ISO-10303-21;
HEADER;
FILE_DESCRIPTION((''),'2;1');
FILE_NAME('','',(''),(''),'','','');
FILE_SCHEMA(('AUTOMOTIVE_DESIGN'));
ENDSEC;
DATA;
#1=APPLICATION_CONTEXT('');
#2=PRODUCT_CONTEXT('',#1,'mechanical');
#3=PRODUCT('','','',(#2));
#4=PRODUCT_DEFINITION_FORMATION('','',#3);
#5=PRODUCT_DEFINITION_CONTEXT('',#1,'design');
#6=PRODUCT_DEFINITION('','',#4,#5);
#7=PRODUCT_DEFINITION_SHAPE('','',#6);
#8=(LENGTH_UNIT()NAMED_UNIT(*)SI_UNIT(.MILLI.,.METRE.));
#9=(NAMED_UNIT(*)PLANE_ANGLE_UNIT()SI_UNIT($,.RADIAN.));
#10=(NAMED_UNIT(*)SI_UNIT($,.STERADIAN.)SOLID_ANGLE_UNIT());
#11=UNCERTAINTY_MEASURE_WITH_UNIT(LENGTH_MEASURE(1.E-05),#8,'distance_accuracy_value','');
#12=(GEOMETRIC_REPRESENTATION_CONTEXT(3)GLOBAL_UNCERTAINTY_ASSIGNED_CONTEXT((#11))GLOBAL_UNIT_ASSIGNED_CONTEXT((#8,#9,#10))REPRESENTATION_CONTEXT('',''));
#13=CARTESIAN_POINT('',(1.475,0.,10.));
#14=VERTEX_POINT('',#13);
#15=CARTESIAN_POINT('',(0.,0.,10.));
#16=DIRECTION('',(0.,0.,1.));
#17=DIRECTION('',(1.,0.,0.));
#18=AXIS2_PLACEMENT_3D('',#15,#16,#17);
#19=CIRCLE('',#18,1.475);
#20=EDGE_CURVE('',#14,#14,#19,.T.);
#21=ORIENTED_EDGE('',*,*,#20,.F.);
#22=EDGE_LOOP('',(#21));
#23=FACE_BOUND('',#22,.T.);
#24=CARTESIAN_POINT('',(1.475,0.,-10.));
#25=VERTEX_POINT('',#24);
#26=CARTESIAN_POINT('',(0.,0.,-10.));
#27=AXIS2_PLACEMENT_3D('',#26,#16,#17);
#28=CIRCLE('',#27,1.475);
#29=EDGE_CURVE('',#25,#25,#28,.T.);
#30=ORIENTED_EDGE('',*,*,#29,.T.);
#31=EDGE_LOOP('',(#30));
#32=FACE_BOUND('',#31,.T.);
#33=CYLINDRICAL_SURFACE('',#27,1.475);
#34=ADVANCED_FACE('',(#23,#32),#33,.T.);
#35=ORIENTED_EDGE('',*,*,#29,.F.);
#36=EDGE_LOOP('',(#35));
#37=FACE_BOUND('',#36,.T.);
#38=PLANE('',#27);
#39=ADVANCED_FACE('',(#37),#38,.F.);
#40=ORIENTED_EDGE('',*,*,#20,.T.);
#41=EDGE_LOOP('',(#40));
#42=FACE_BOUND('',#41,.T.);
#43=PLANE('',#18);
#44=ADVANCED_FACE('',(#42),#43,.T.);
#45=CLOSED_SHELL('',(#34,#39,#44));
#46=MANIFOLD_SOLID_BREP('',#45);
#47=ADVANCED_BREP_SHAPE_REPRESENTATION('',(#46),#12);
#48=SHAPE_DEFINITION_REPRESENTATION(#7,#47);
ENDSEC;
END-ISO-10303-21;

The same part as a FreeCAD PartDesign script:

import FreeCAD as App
import Part
import Sketcher

doc = App.newDocument("Part")
body = doc.addObject("PartDesign::Body", "Body")

# Sketch on XY plane
sketch1 = body.newObject("Sketcher::SketchObject", "Sketch")
sketch1.AttachmentSupport = (doc.getObject("XY_Plane"), [""])
sketch1.MapMode = "FlatFace"
sketch1.addGeometry(Part.Circle(App.Vector(0, 0, 0), App.Vector(0, 0, 1), 1.5), False)
sketch1.addConstraint([
    Sketcher.Constraint("Coincident", 0, 3, -1, 1),
    Sketcher.Constraint("Diameter", 0, 2.95),
])
pad1 = body.newObject("PartDesign::Pad", "Pad")
pad1.Profile = sketch1
pad1.Type = "TwoLengths"
pad1.Length = 10
pad1.Length2 = 10

doc.recompute()
